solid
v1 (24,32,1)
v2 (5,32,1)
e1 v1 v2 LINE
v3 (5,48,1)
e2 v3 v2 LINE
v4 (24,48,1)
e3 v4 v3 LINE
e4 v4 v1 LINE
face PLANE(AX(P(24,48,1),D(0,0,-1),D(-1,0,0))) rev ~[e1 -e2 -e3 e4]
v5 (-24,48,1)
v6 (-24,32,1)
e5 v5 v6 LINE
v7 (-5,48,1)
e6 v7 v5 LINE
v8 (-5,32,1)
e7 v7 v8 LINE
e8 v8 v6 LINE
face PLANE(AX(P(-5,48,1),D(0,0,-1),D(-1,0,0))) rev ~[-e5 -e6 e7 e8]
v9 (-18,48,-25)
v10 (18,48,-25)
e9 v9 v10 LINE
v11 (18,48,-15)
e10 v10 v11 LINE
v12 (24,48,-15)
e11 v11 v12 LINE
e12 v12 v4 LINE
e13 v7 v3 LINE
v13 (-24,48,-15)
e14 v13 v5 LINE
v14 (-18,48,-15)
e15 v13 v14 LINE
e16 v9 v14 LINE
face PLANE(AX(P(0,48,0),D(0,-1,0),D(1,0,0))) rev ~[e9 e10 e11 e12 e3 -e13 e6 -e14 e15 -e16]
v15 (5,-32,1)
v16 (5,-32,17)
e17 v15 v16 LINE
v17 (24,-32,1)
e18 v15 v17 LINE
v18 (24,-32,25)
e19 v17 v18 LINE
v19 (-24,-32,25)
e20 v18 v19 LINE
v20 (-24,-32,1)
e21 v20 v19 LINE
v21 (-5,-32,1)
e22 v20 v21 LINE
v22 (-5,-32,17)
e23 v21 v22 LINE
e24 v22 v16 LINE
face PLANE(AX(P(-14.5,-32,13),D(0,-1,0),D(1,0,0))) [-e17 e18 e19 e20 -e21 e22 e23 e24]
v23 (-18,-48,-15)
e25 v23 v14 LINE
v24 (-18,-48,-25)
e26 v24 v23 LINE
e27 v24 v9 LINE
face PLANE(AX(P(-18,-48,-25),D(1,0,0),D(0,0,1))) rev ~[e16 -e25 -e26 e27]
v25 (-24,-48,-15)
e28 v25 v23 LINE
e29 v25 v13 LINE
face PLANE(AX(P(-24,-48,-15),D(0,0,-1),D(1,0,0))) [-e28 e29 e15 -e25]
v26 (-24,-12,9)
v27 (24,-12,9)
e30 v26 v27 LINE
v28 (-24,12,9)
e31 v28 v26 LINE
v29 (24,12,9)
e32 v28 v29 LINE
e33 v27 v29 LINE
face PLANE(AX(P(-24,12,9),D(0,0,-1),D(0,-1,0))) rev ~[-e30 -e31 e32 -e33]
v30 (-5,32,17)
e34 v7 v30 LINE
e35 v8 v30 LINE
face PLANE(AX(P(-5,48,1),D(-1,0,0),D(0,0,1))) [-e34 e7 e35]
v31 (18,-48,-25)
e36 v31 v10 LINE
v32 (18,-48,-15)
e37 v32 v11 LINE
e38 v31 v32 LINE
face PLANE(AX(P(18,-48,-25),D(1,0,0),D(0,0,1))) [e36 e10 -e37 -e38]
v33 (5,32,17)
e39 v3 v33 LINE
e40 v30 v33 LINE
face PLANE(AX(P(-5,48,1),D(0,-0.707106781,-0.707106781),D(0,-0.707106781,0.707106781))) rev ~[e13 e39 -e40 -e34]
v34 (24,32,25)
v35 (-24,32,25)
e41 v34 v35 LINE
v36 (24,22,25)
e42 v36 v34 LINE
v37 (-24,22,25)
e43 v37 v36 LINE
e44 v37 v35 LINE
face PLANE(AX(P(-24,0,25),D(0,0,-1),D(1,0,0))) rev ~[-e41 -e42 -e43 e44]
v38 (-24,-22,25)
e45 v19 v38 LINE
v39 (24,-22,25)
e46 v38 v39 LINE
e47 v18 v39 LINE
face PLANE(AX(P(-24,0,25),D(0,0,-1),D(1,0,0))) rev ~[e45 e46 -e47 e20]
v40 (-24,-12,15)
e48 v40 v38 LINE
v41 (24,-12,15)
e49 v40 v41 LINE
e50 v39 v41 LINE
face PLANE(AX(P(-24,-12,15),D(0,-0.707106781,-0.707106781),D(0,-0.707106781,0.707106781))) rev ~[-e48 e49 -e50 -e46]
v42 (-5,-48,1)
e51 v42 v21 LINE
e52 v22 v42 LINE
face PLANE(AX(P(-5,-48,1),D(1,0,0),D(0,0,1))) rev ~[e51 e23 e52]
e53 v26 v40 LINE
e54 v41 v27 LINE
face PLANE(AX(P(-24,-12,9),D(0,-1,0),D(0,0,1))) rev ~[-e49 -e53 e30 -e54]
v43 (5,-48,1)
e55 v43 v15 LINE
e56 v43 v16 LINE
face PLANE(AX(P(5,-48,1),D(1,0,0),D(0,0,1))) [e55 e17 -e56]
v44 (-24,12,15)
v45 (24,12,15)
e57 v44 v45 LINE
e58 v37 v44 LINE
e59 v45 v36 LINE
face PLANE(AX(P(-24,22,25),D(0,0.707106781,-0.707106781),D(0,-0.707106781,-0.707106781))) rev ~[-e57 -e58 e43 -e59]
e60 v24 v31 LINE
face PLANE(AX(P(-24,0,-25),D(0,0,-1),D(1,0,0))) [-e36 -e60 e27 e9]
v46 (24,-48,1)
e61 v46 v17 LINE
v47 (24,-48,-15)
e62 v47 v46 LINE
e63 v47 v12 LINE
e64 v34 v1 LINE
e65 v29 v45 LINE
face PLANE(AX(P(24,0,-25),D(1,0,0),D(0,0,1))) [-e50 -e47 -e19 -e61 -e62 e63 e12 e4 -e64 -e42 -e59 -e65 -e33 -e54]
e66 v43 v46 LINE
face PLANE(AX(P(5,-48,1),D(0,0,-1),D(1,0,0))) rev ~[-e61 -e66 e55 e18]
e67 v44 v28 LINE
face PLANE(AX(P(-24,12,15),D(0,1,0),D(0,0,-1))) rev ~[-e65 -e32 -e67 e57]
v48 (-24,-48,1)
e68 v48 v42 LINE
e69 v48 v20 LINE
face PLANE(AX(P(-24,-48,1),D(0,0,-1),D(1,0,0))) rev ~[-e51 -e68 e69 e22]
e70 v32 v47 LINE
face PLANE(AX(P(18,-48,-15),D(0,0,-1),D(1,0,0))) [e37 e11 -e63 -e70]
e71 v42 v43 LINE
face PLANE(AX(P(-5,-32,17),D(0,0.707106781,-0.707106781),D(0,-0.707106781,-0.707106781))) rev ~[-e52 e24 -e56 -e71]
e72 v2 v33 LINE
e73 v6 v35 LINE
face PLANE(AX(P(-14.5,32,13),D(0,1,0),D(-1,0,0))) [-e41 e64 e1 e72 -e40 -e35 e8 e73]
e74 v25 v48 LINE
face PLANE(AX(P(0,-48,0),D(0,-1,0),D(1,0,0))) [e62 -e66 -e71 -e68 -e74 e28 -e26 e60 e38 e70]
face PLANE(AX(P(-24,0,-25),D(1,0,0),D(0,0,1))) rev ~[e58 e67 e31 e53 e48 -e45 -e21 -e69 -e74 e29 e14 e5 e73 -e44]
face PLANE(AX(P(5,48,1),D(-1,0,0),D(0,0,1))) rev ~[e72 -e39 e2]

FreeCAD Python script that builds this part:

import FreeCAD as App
import Part
import Sketcher


def add_polygon(sketch, points):
    """Adds a closed chain of lines whose ends are joined by coincident constraints."""
    first, n = sketch.GeometryCount, len(points)
    for a, b in zip(points, points[1:] + points[:1]):
        sketch.addGeometry(Part.LineSegment(App.Vector(*a, 0), App.Vector(*b, 0)), False)
    for i in range(n):
        sketch.addConstraint(Sketcher.Constraint("Coincident", first + i, 2, first + (i + 1) % n, 1))

doc = App.newDocument("Part")
body = doc.addObject("PartDesign::Body", "Body")

sketch1 = doc.addObject("Sketcher::SketchObject", "Sketch")
body.addObject(sketch1)
sketch1.AttachmentSupport = (doc.XZ_Plane, [""])
sketch1.MapMode = "FlatFace"
add_polygon(sketch1, [(-24, 25), (-24, -25), (24, -25), (24, 25)])
sketch1.addConstraint(Sketcher.Constraint("Vertical", 0))
sketch1.addConstraint(Sketcher.Constraint("Horizontal", 1))
sketch1.addConstraint(Sketcher.Constraint("Vertical", 2))
sketch1.addConstraint(Sketcher.Constraint("Horizontal", 3))
sketch1.addConstraint(Sketcher.Constraint("Symmetric", 0, 2, 2, 2, -1, 1))
sketch1.addConstraint(Sketcher.Constraint("DistanceX", 1, 1, 1, 2, 48.0))
sketch1.addConstraint(Sketcher.Constraint("DistanceY", 0, 2, 0, 1, 50.0))
pad1 = doc.addObject("PartDesign::Pad", "Pad")
body.addObject(pad1)
pad1.Profile = sketch1
pad1.Length = 96
pad1.Midplane = True

sketch2 = doc.addObject("Sketcher::SketchObject", "Sketch001")
body.addObject(sketch2)
sketch2.AttachmentSupport = (doc.XZ_Plane, [""])
sketch2.MapMode = "FlatFace"
sketch2.AttachmentOffset = App.Placement(App.Vector(0, 0, 48), App.Rotation())
add_polygon(sketch2, [(-24, -15), (-24, -25), (-18, -25), (-18, -15)])
add_polygon(sketch2, [(18, -15), (18, -25), (24, -25), (24, -15)])
sketch2.addConstraint(Sketcher.Constraint("Vertical", 0))
sketch2.addConstraint(Sketcher.Constraint("Horizontal", 1))
sketch2.addConstraint(Sketcher.Constraint("Vertical", 2))
sketch2.addConstraint(Sketcher.Constraint("Horizontal", 3))
sketch2.addConstraint(Sketcher.Constraint("Vertical", 4))
sketch2.addConstraint(Sketcher.Constraint("Horizontal", 5))
sketch2.addConstraint(Sketcher.Constraint("Vertical", 6))
sketch2.addConstraint(Sketcher.Constraint("Horizontal", 7))
sketch2.addConstraint(Sketcher.Constraint("Symmetric", 1, 2, 4, 2, -2))
sketch2.addConstraint(Sketcher.Constraint("Symmetric", 3, 2, 6, 2, -2))
sketch2.addConstraint(Sketcher.Constraint("DistanceX", 1, 1, 1, 2, 6.0))
sketch2.addConstraint(Sketcher.Constraint("DistanceY", 0, 2, 0, 1, 10.0))
sketch2.addConstraint(Sketcher.Constraint("DistanceX", 0, 2, -1, 1, 24.0))
sketch2.addConstraint(Sketcher.Constraint("DistanceY", 0, 2, -1, 1, 25.0))
pocket1 = doc.addObject("PartDesign::Pocket", "Pocket")
body.addObject(pocket1)
pocket1.Profile = sketch2
pocket1.Type = "ThroughAll"

sketch3 = doc.addObject("Sketcher::SketchObject", "Sketch002")
body.addObject(sketch3)
sketch3.AttachmentSupport = (doc.XZ_Plane, [""])
sketch3.MapMode = "FlatFace"
sketch3.AttachmentOffset = App.Placement(App.Vector(0, 0, 48), App.Rotation())
add_polygon(sketch3, [(-24, 25), (-24, 1), (-5, 1), (-5, 25)])
add_polygon(sketch3, [(5, 25), (5, 1), (24, 1), (24, 25)])
sketch3.addConstraint(Sketcher.Constraint("Vertical", 0))
sketch3.addConstraint(Sketcher.Constraint("Horizontal", 1))
sketch3.addConstraint(Sketcher.Constraint("Vertical", 2))
sketch3.addConstraint(Sketcher.Constraint("Horizontal", 3))
sketch3.addConstraint(Sketcher.Constraint("Vertical", 4))
sketch3.addConstraint(Sketcher.Constraint("Horizontal", 5))
sketch3.addConstraint(Sketcher.Constraint("Vertical", 6))
sketch3.addConstraint(Sketcher.Constraint("Horizontal", 7))
sketch3.addConstraint(Sketcher.Constraint("Symmetric", 1, 2, 4, 2, -2))
sketch3.addConstraint(Sketcher.Constraint("Symmetric", 3, 2, 6, 2, -2))
sketch3.addConstraint(Sketcher.Constraint("DistanceX", 1, 1, 1, 2, 19.0))
sketch3.addConstraint(Sketcher.Constraint("DistanceY", 0, 2, 0, 1, 24.0))
sketch3.addConstraint(Sketcher.Constraint("DistanceX", 0, 2, -1, 1, 24.0))
sketch3.addConstraint(Sketcher.Constraint("DistanceY", -1, 1, 0, 2, 1.0))
pocket2 = doc.addObject("PartDesign::Pocket", "Pocket001")
body.addObject(pocket2)
pocket2.Profile = sketch3
pocket2.Length = 16

sketch4 = doc.addObject("Sketcher::SketchObject", "Sketch003")
body.addObject(sketch4)
sketch4.AttachmentSupport = (doc.YZ_Plane, [""])
sketch4.MapMode = "FlatFace"
sketch4.AttachmentOffset = App.Placement(App.Vector(0, 0, -5), App.Rotation())
add_polygon(sketch4, [(-32, 17), (-48, 1), (-48, 25), (-32, 25)])
sketch4.addConstraint(Sketcher.Constraint("Vertical", 1))
sketch4.addConstraint(Sketcher.Constraint("Horizontal", 2))
sketch4.addConstraint(Sketcher.Constraint("Vertical", 3))
sketch4.addConstraint(Sketcher.Constraint("DistanceX", 2, 1, 2, 2, 16.0))
sketch4.addConstraint(Sketcher.Constraint("DistanceY", 1, 1, 1, 2, 24.0))
sketch4.addConstraint(Sketcher.Constraint("DistanceY", 3, 2, 3, 1, 8.0))
sketch4.addConstraint(Sketcher.Constraint("DistanceX", 0, 2, -1, 1, 48.0))
sketch4.addConstraint(Sketcher.Constraint("DistanceY", -1, 1, 0, 2, 1.0))
pocket3 = doc.addObject("PartDesign::Pocket", "Pocket002")
body.addObject(pocket3)
pocket3.Profile = sketch4
pocket3.Type = "ThroughAll"
pocket3.Reversed = True

sketch5 = doc.addObject("Sketcher::SketchObject", "Sketch004")
body.addObject(sketch5)
sketch5.AttachmentSupport = (doc.YZ_Plane, [""])
sketch5.MapMode = "FlatFace"
sketch5.AttachmentOffset = App.Placement(App.Vector(0, 0, -24), App.Rotation())
add_polygon(sketch5, [(-12, 15), (-22, 25), (22, 25), (12, 15), (12, 9), (-12, 9)])
sketch5.addConstraint(Sketcher.Constraint("Horizontal", 1))
sketch5.addConstraint(Sketcher.Constraint("Vertical", 3))
sketch5.addConstraint(Sketcher.Constraint("Horizontal", 4))
sketch5.addConstraint(Sketcher.Constraint("Vertical", 5))
sketch5.addConstraint(Sketcher.Constraint("Symmetric", 2, 2, 5, 2, -2))
sketch5.addConstraint(Sketcher.Constraint("Perpendicular", 0, 2))
sketch5.addConstraint(Sketcher.Constraint("Equal", 0, 2))
sketch5.addConstraint(Sketcher.Constraint("DistanceX", 1, 1, 1, 2, 44.0))
sketch5.addConstraint(Sketcher.Constraint("DistanceX", 4, 2, 4, 1, 24.0))
sketch5.addConstraint(Sketcher.Constraint("DistanceY", 3, 2, 3, 1, 6.0))
sketch5.addConstraint(Sketcher.Constraint("DistanceY", -1, 1, 0, 2, 25.0))
pocket4 = doc.addObject("PartDesign::Pocket", "Pocket003")
body.addObject(pocket4)
pocket4.Profile = sketch5
pocket4.Type = "ThroughAll"
pocket4.Reversed = True

sketch6 = doc.addObject("Sketcher::SketchObject", "Sketch005")
body.addObject(sketch6)
sketch6.AttachmentSupport = (doc.XZ_Plane, [""])
sketch6.MapMode = "FlatFace"
sketch6.AttachmentOffset = App.Placement(App.Vector(0, 0, -48), App.Rotation())
add_polygon(sketch6, [(24, 25), (24, 1), (5, 1), (5, 25)])
add_polygon(sketch6, [(-5, 25), (-5, 1), (-24, 1), (-24, 25)])
sketch6.addConstraint(Sketcher.Constraint("Vertical", 0))
sketch6.addConstraint(Sketcher.Constraint("Horizontal", 1))
sketch6.addConstraint(Sketcher.Constraint("Vertical", 2))
sketch6.addConstraint(Sketcher.Constraint("Horizontal", 3))
sketch6.addConstraint(Sketcher.Constraint("Vertical", 4))
sketch6.addConstraint(Sketcher.Constraint("Horizontal", 5))
sketch6.addConstraint(Sketcher.Constraint("Vertical", 6))
sketch6.addConstraint(Sketcher.Constraint("Horizontal", 7))
sketch6.addConstraint(Sketcher.Constraint("Symmetric", 1, 2, 4, 2, -2))
sketch6.addConstraint(Sketcher.Constraint("Symmetric", 3, 2, 6, 2, -2))
sketch6.addConstraint(Sketcher.Constraint("DistanceX", 1, 2, 1, 1, 19.0))
sketch6.addConstraint(Sketcher.Constraint("DistanceY", 0, 2, 0, 1, 24.0))
sketch6.addConstraint(Sketcher.Constraint("DistanceX", -1, 1, 0, 2, 24.0))
sketch6.addConstraint(Sketcher.Constraint("DistanceY", -1, 1, 0, 2, 1.0))
pocket5 = doc.addObject("PartDesign::Pocket", "Pocket004")
body.addObject(pocket5)
pocket5.Profile = sketch6
pocket5.Length = 16
pocket5.Reversed = True

sketch7 = doc.addObject("Sketcher::SketchObject", "Sketch006")
body.addObject(sketch7)
sketch7.AttachmentSupport = (doc.YZ_Plane, [""])
sketch7.MapMode = "FlatFace"
sketch7.AttachmentOffset = App.Placement(App.Vector(0, 0, -5), App.Rotation())
add_polygon(sketch7, [(48, 1), (32, 17), (32, 25), (48, 25)])
sketch7.addConstraint(Sketcher.Constraint("Vertical", 1))
sketch7.addConstraint(Sketcher.Constraint("Horizontal", 2))
sketch7.addConstraint(Sketcher.Constraint("Vertical", 3))
sketch7.addConstraint(Sketcher.Constraint("DistanceX", 2, 1, 2, 2, 16.0))
sketch7.addConstraint(Sketcher.Constraint("DistanceY", 1, 1, 1, 2, 8.0))
sketch7.addConstraint(Sketcher.Constraint("DistanceY", 3, 2, 3, 1, 24.0))
sketch7.addConstraint(Sketcher.Constraint("DistanceX", -1, 1, 0, 2, 32.0))
sketch7.addConstraint(Sketcher.Constraint("DistanceY", -1, 1, 0, 2, 17.0))
pocket6 = doc.addObject("PartDesign::Pocket", "Pocket005")
body.addObject(pocket6)
pocket6.Profile = sketch7
pocket6.Type = "ThroughAll"
pocket6.Reversed = True

doc.recompute()
